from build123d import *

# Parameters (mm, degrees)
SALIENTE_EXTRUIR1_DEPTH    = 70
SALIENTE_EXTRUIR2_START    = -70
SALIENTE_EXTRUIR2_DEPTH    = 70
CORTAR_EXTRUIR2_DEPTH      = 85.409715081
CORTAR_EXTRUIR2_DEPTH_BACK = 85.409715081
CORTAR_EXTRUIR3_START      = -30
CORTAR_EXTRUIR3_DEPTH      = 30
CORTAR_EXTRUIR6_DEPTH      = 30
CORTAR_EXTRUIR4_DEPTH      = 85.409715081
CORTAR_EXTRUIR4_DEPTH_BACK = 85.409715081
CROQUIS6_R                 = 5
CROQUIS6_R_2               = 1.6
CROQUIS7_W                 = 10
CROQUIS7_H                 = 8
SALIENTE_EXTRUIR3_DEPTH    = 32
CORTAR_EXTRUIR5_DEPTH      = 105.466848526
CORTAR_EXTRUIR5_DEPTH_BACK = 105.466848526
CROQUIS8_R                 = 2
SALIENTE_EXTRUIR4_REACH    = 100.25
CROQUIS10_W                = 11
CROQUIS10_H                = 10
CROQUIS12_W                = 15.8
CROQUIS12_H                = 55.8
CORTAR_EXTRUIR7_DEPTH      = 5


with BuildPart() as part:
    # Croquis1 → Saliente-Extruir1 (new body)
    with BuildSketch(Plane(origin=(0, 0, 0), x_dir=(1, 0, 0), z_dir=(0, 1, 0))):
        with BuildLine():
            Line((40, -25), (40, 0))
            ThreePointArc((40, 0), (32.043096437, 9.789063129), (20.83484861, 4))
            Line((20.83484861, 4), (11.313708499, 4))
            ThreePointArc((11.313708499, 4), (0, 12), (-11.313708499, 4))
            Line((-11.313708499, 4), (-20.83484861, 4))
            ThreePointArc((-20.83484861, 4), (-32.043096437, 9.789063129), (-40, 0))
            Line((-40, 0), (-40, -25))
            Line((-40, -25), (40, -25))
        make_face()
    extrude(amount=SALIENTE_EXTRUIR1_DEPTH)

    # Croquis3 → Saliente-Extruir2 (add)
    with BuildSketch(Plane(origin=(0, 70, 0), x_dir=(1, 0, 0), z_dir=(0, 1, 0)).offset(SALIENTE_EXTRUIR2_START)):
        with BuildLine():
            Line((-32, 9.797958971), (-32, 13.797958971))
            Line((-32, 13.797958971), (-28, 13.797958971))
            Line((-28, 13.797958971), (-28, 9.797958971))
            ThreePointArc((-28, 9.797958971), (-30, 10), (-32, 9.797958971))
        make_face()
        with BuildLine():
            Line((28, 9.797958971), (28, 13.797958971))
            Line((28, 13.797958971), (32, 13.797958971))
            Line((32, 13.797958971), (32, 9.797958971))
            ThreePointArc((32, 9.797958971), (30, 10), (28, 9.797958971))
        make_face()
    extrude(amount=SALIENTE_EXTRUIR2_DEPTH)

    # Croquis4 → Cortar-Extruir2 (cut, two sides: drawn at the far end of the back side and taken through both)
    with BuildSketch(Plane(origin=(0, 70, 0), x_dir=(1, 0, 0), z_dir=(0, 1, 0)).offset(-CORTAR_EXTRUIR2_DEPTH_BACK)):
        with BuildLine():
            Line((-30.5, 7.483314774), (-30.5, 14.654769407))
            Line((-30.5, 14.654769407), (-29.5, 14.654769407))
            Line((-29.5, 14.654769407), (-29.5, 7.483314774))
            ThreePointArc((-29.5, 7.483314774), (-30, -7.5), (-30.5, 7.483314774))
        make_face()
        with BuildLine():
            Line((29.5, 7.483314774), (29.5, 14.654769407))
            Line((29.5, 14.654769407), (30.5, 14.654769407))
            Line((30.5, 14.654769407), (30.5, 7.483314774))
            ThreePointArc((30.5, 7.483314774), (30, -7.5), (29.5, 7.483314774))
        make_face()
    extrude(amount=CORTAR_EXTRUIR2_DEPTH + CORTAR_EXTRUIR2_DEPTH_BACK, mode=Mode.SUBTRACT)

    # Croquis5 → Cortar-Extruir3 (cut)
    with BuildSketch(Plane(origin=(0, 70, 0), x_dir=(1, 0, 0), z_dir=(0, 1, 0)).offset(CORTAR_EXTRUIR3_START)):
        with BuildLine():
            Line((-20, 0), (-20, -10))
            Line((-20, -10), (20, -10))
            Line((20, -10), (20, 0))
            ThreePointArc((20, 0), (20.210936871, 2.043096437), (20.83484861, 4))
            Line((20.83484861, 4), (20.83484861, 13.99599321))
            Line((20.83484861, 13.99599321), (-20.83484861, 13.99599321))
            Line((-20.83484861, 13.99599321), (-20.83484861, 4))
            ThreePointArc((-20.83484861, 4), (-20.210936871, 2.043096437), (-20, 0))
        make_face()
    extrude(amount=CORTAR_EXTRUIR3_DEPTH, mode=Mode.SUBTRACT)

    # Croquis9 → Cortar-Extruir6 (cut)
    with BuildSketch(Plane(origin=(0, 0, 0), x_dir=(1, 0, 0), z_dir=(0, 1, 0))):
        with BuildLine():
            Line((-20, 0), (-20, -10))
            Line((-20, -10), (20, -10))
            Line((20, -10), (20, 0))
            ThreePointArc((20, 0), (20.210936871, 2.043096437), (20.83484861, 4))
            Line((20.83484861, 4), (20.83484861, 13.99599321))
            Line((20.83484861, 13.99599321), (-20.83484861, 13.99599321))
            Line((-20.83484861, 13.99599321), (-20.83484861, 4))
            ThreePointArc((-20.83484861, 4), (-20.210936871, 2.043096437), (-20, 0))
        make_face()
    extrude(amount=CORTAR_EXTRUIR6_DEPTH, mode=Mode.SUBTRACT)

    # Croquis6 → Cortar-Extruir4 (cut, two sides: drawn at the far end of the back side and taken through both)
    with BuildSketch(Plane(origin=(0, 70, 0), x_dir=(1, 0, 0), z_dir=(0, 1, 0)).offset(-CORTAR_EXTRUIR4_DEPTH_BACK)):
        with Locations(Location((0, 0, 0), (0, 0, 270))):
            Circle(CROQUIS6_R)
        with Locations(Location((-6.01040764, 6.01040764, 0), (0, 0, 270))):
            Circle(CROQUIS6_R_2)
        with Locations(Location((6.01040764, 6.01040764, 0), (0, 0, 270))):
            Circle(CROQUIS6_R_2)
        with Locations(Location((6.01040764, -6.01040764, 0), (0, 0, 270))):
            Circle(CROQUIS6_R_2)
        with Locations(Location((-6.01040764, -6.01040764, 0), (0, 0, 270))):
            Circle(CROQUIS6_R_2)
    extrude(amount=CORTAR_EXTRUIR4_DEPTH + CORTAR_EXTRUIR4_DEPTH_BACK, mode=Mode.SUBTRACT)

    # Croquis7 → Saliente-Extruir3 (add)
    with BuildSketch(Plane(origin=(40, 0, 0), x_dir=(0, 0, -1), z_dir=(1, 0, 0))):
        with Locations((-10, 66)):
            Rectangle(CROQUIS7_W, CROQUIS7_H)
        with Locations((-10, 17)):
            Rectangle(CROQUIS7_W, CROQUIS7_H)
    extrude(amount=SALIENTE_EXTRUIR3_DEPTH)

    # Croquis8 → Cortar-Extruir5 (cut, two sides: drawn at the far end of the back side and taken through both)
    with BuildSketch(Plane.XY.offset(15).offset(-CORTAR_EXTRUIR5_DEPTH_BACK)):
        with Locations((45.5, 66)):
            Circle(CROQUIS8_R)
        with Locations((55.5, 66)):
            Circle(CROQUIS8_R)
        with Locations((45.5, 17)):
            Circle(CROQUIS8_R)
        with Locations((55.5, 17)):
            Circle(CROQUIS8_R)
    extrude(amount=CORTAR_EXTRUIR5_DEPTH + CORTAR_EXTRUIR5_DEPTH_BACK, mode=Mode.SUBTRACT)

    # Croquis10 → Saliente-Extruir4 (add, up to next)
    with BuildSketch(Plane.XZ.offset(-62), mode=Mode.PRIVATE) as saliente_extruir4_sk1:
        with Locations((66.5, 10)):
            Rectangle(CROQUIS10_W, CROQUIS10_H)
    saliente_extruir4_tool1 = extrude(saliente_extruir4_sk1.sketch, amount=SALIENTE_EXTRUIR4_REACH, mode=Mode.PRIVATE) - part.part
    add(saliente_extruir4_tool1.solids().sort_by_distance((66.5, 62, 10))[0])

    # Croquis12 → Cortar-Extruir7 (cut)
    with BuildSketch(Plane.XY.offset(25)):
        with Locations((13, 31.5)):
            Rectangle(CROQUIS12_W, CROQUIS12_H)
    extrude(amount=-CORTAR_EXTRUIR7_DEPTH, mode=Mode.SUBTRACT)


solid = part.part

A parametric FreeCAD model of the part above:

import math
import FreeCAD as App
import Part
import Sketcher

V = App.Vector


def add_polygon(sketch, points):
    """Adds a closed chain of lines whose ends are joined by coincident constraints."""
    first, n = sketch.GeometryCount, len(points)
    for a, b in zip(points, points[1:] + points[:1]):
        sketch.addGeometry(Part.LineSegment(App.Vector(*a, 0), App.Vector(*b, 0)), False)
    for i in range(n):
        sketch.addConstraint(Sketcher.Constraint("Coincident", first + i, 2, first + (i + 1) % n, 1))

doc = App.newDocument("Part")
body = doc.addObject("PartDesign::Body", "Body")

sketch1 = doc.addObject("Sketcher::SketchObject", "Sketch")
body.addObject(sketch1)
sketch1.AttachmentSupport = (doc.XZ_Plane, [""])
sketch1.MapMode = "FlatFace"
sketch1.addGeometry([
    Part.LineSegment(V(40, 25, 0), V(40, 0, 0)),
    Part.ArcOfCircle(Part.Circle(V(30, 0, 0), V(0, 0, 1), 10), math.radians(-156), math.radians(0)),
    Part.LineSegment(V(21, -4, 0), V(11, -4, 0)),
    Part.ArcOfCircle(Part.Circle(V(0, 0, 0), V(0, 0, 1), 12), math.radians(-161), math.radians(-19)),
    Part.LineSegment(V(-11, -4, 0), V(-21, -4, 0)),
    Part.ArcOfCircle(Part.Circle(V(-30, 0, 0), V(0, 0, 1), 10), math.radians(180), math.radians(336)),
    Part.LineSegment(V(-40, 0, 0), V(-40, 25, 0)),
    Part.LineSegment(V(-40, 25, 0), V(40, 25, 0)),
], False)
sketch1.addConstraint([
    Sketcher.Constraint("Tangent", 0, 2, 1, 2),
    Sketcher.Constraint("Coincident", 1, 1, 2, 1),
    Sketcher.Constraint("Coincident", 2, 2, 3, 2),
    Sketcher.Constraint("Coincident", 3, 1, 4, 1),
    Sketcher.Constraint("Coincident", 4, 2, 5, 2),
    Sketcher.Constraint("Tangent", 5, 1, 6, 1),
    Sketcher.Constraint("Coincident", 6, 2, 7, 1),
    Sketcher.Constraint("Coincident", 7, 2, 0, 1),
    Sketcher.Constraint("Vertical", 0),
    Sketcher.Constraint("Horizontal", 2),
    Sketcher.Constraint("Horizontal", 4),
    Sketcher.Constraint("Vertical", 6),
    Sketcher.Constraint("Horizontal", 7),
    Sketcher.Constraint("Coincident", 3, 3, -1, 1),
    Sketcher.Constraint("Equal", 1, 5),
    Sketcher.Constraint("Symmetric", 1, 3, 5, 3, -1, 1),
    Sketcher.Constraint("Symmetric", 1, 1, 4, 2, -2),
    Sketcher.Constraint("Radius", 1, 10.0),
    Sketcher.Constraint("Radius", 3, 12.0),
    Sketcher.Constraint("DistanceX", 7, 1, 7, 2, 80.0),
    Sketcher.Constraint("DistanceY", 0, 2, 0, 1, 25.0),
    Sketcher.Constraint("DistanceY", 1, 1, -1, 1, 4.0),
])
pad1 = doc.addObject("PartDesign::Pad", "Pad")
body.addObject(pad1)
pad1.Profile = sketch1
pad1.Length = 70
pad1.Reversed = True

sketch2 = doc.addObject("Sketcher::SketchObject", "Sketch001")
body.addObject(sketch2)
sketch2.AttachmentSupport = (doc.XZ_Plane, [""])
sketch2.MapMode = "FlatFace"
sketch2.addGeometry([
    Part.LineSegment(V(-32, -13.8, 0), V(-32, -9.8, 0)),
    Part.ArcOfCircle(Part.Circle(V(-30, 0, 0), V(0, 0, 1), 10), math.radians(-102), math.radians(-78)),
    Part.LineSegment(V(-28, -9.8, 0), V(-28, -13.8, 0)),
    Part.LineSegment(V(-28, -13.8, 0), V(-32, -13.8, 0)),
    Part.LineSegment(V(28, -13.8, 0), V(28, -9.8, 0)),
    Part.ArcOfCircle(Part.Circle(V(30, 0, 0), V(0, 0, 1), 10), math.radians(-102), math.radians(-78)),
    Part.LineSegment(V(32, -9.8, 0), V(32, -13.8, 0)),
    Part.LineSegment(V(32, -13.8, 0), V(28, -13.8, 0)),
], False)
sketch2.addConstraint([
    Sketcher.Constraint("Coincident", 0, 2, 1, 1),
    Sketcher.Constraint("Coincident", 1, 2, 2, 1),
    Sketcher.Constraint("Coincident", 2, 2, 3, 1),
    Sketcher.Constraint("Coincident", 3, 2, 0, 1),
    Sketcher.Constraint("Coincident", 4, 2, 5, 1),
    Sketcher.Constraint("Coincident", 5, 2, 6, 1),
    Sketcher.Constraint("Coincident", 6, 2, 7, 1),
    Sketcher.Constraint("Coincident", 7, 2, 4, 1),
    Sketcher.Constraint("Vertical", 0),
    Sketcher.Constraint("Vertical", 2),
    Sketcher.Constraint("Horizontal", 3),
    Sketcher.Constraint("Vertical", 4),
    Sketcher.Constraint("Vertical", 6),
    Sketcher.Constraint("Horizontal", 7),
    Sketcher.Constraint("Equal", 1, 5),
    Sketcher.Constraint("Symmetric", 1, 3, 5, 3, -1, 1),
    Sketcher.Constraint("Symmetric", 1, 2, 4, 2, -2),
    Sketcher.Constraint("Symmetric", 3, 2, 6, 2, -2),
    Sketcher.Constraint("Horizontal", 0, 2, 1, 2),
    Sketcher.Constraint("Equal", 7, 0),
    Sketcher.Constraint("Radius", 1, 10.0),
    Sketcher.Constraint("DistanceX", 3, 2, 3, 1, 4.0),
    Sketcher.Constraint("DistanceX", 1, 3, -1, 1, 30.0),
])
pad2 = doc.addObject("PartDesign::Pad", "Pad001")
body.addObject(pad2)
pad2.Profile = sketch2
pad2.Length = 70
pad2.Reversed = True

sketch3 = doc.addObject("Sketcher::SketchObject", "Sketch002")
body.addObject(sketch3)
sketch3.AttachmentSupport = (doc.XZ_Plane, [""])
sketch3.MapMode = "FlatFace"
sketch3.AttachmentOffset = App.Placement(V(0, 0, -70), App.Rotation())
sketch3.addGeometry([
    Part.LineSegment(V(-30.5, -14.7, 0), V(-30.5, -7.5, 0)),
    Part.ArcOfCircle(Part.Circle(V(-30, 0, 0), V(0, 0, 1), 7.5), math.radians(-86), math.radians(266)),
    Part.LineSegment(V(-29.5, -7.5, 0), V(-29.5, -14.7, 0)),
    Part.LineSegment(V(-29.5, -14.7, 0), V(-30.5, -14.7, 0)),
    Part.LineSegment(V(29.5, -14.7, 0), V(29.5, -7.5, 0)),
    Part.ArcOfCircle(Part.Circle(V(30, 0, 0), V(0, 0, 1), 7.5), math.radians(-86), math.radians(266)),
    Part.LineSegment(V(30.5, -7.5, 0), V(30.5, -14.7, 0)),
    Part.LineSegment(V(30.5, -14.7, 0), V(29.5, -14.7, 0)),
], False)
sketch3.addConstraint([
    Sketcher.Constraint("Coincident", 0, 2, 1, 2),
    Sketcher.Constraint("Coincident", 1, 1, 2, 1),
    Sketcher.Constraint("Coincident", 2, 2, 3, 1),
    Sketcher.Constraint("Coincident", 3, 2, 0, 1),
    Sketcher.Constraint("Coincident", 4, 2, 5, 2),
    Sketcher.Constraint("Coincident", 5, 1, 6, 1),
    Sketcher.Constraint("Coincident", 6, 2, 7, 1),
    Sketcher.Constraint("Coincident", 7, 2, 4, 1),
    Sketcher.Constraint("Vertical", 0),
    Sketcher.Constraint("Vertical", 2),
    Sketcher.Constraint("Horizontal", 3),
    Sketcher.Constraint("Vertical", 4),
    Sketcher.Constraint("Vertical", 6),
    Sketcher.Constraint("Horizontal", 7),
    Sketcher.Constraint("Equal", 1, 5),
    Sketcher.Constraint("Symmetric", 1, 3, 5, 3, -1, 1),
    Sketcher.Constraint("Symmetric", 1, 1, 4, 2, -2),
    Sketcher.Constraint("Symmetric", 3, 2, 6, 2, -2),
    Sketcher.Constraint("Horizontal", 0, 2, 1, 1),
    Sketcher.Constraint("Radius", 1, 7.5),
    Sketcher.Constraint("DistanceX", 3, 2, 3, 1, 1.0),
    Sketcher.Constraint("DistanceX", 1, 3, -1, 1, 30.0),
    Sketcher.Constraint("DistanceY", 0, 1, 0, 2, 7.171455),
])
pocket1 = doc.addObject("PartDesign::Pocket", "Pocket")
body.addObject(pocket1)
pocket1.Profile = sketch3
pocket1.Type = "ThroughAll"
pocket1.Midplane = True

sketch4 = doc.addObject("Sketcher::SketchObject", "Sketch003")
body.addObject(sketch4)
sketch4.AttachmentSupport = (doc.XZ_Plane, [""])
sketch4.MapMode = "FlatFace"
sketch4.AttachmentOffset = App.Placement(V(0, 0, -40), App.Rotation())
sketch4.addGeometry([
    Part.LineSegment(V(-20, 0, 0), V(-20, 10, 0)),
    Part.LineSegment(V(-20, 10, 0), V(20, 10, 0)),
    Part.LineSegment(V(20, 10, 0), V(20, 0, 0)),
    Part.ArcOfCircle(Part.Circle(V(30, 0, 0), V(0, 0, 1), 10), math.radians(-180), math.radians(-156)),
    Part.LineSegment(V(20.8, -4, 0), V(20.8, -14, 0)),
    Part.LineSegment(V(20.8, -14, 0), V(-20.8, -14, 0)),
    Part.LineSegment(V(-20.8, -14, 0), V(-20.8, -4, 0)),
    Part.ArcOfCircle(Part.Circle(V(-30, 0, 0), V(0, 0, 1), 10), math.radians(-24), math.radians(0)),
], False)
sketch4.addConstraint([
    Sketcher.Constraint("Coincident", 0, 2, 1, 1),
    Sketcher.Constraint("Coincident", 1, 2, 2, 1),
    Sketcher.Constraint("Tangent", 2, 2, 3, 1),
    Sketcher.Constraint("Coincident", 3, 2, 4, 1),
    Sketcher.Constraint("Coincident", 4, 2, 5, 1),
    Sketcher.Constraint("Coincident", 5, 2, 6, 1),
    Sketcher.Constraint("Coincident", 6, 2, 7, 1),
    Sketcher.Constraint("Tangent", 7, 2, 0, 1),
    Sketcher.Constraint("Vertical", 0),
    Sketcher.Constraint("Horizontal", 1),
    Sketcher.Constraint("Vertical", 2),
    Sketcher.Constraint("Vertical", 4),
    Sketcher.Constraint("Horizontal", 5),
    Sketcher.Constraint("Vertical", 6),
    Sketcher.Constraint("Equal", 3, 7),
    Sketcher.Constraint("Symmetric", 3, 3, 7, 3, -1, 1),
    Sketcher.Constraint("Symmetric", 3, 2, 6, 2, -2),
    Sketcher.Constraint("Radius", 3, 10.0),
    Sketcher.Constraint("DistanceX", 1, 1, 1, 2, 40.0),
    Sketcher.Constraint("DistanceY", 0, 1, 0, 2, 10.0),
    Sketcher.Constraint("DistanceY", 3, 2, -1, 1, 4.0),
    Sketcher.Constraint("DistanceY", 4, 2, 4, 1, 9.995993),
])
pocket2 = doc.addObject("PartDesign::Pocket", "Pocket001")
body.addObject(pocket2)
pocket2.Profile = sketch4
pocket2.Length = 30

sketch5 = doc.addObject("Sketcher::SketchObject", "Sketch004")
body.addObject(sketch5)
sketch5.AttachmentSupport = (doc.XZ_Plane, [""])
sketch5.MapMode = "FlatFace"
sketch5.addGeometry([
    Part.LineSegment(V(-20, 0, 0), V(-20, 10, 0)),
    Part.LineSegment(V(-20, 10, 0), V(20, 10, 0)),
    Part.LineSegment(V(20, 10, 0), V(20, 0, 0)),
    Part.ArcOfCircle(Part.Circle(V(30, 0, 0), V(0, 0, 1), 10), math.radians(-180), math.radians(-156)),
    Part.LineSegment(V(20.8, -4, 0), V(20.8, -14, 0)),
    Part.LineSegment(V(20.8, -14, 0), V(-20.8, -14, 0)),
    Part.LineSegment(V(-20.8, -14, 0), V(-20.8, -4, 0)),
    Part.ArcOfCircle(Part.Circle(V(-30, 0, 0), V(0, 0, 1), 10), math.radians(-24), math.radians(0)),
], False)
sketch5.addConstraint([
    Sketcher.Constraint("Coincident", 0, 2, 1, 1),
    Sketcher.Constraint("Coincident", 1, 2, 2, 1),
    Sketcher.Constraint("Tangent", 2, 2, 3, 1),
    Sketcher.Constraint("Coincident", 3, 2, 4, 1),
    Sketcher.Constraint("Coincident", 4, 2, 5, 1),
    Sketcher.Constraint("Coincident", 5, 2, 6, 1),
    Sketcher.Constraint("Coincident", 6, 2, 7, 1),
    Sketcher.Constraint("Tangent", 7, 2, 0, 1),
    Sketcher.Constraint("Vertical", 0),
    Sketcher.Constraint("Horizontal", 1),
    Sketcher.Constraint("Vertical", 2),
    Sketcher.Constraint("Vertical", 4),
    Sketcher.Constraint("Horizontal", 5),
    Sketcher.Constraint("Vertical", 6),
    Sketcher.Constraint("Equal", 3, 7),
    Sketcher.Constraint("Symmetric", 3, 3, 7, 3, -1, 1),
    Sketcher.Constraint("Symmetric", 3, 2, 6, 2, -2),
    Sketcher.Constraint("Radius", 3, 10.0),
    Sketcher.Constraint("DistanceX", 1, 1, 1, 2, 40.0),
    Sketcher.Constraint("DistanceY", 0, 1, 0, 2, 10.0),
    Sketcher.Constraint("DistanceY", 3, 2, -1, 1, 4.0),
    Sketcher.Constraint("DistanceY", 4, 2, 4, 1, 9.995993),
])
pocket3 = doc.addObject("PartDesign::Pocket", "Pocket002")
body.addObject(pocket3)
pocket3.Profile = sketch5
pocket3.Length = 30

sketch6 = doc.addObject("Sketcher::SketchObject", "Sketch005")
body.addObject(sketch6)
sketch6.AttachmentSupport = (doc.XZ_Plane, [""])
sketch6.MapMode = "FlatFace"
sketch6.AttachmentOffset = App.Placement(V(0, 0, -70), App.Rotation())
sketch6.addGeometry([
    Part.Circle(V(0, 0, 0), V(0, 0, 1), 5),
    Part.Circle(V(-6, -6, 0), V(0, 0, 1), 1.6),
    Part.Circle(V(6, -6, 0), V(0, 0, 1), 1.6),
    Part.Circle(V(6, 6, 0), V(0, 0, 1), 1.6),
    Part.Circle(V(-6, 6, 0), V(0, 0, 1), 1.6),
], False)
sketch6.addConstraint([
    Sketcher.Constraint("Coincident", 0, 3, -1, 1),
    Sketcher.Constraint("Equal", 1, 2),
    Sketcher.Constraint("Equal", 2, 3),
    Sketcher.Constraint("Equal", 3, 4),
    Sketcher.Constraint("Symmetric", 1, 3, 3, 3, -1, 1),
    Sketcher.Constraint("Symmetric", 2, 3, 4, 3, -1, 1),
    Sketcher.Constraint("Symmetric", 1, 3, 2, 3, -2),
    Sketcher.Constraint("Diameter", 0, 10.0),
    Sketcher.Constraint("Diameter", 1, 3.2),
    Sketcher.Constraint("DistanceX", 1, 3, -1, 1, 6.010408),
    Sketcher.Constraint("DistanceY", 1, 3, -1, 1, 6.010408),
])
pocket4 = doc.addObject("PartDesign::Pocket", "Pocket003")
body.addObject(pocket4)
pocket4.Profile = sketch6
pocket4.Type = "ThroughAll"
pocket4.Midplane = True

sketch7 = doc.addObject("Sketcher::SketchObject", "Sketch006")
body.addObject(sketch7)
sketch7.AttachmentSupport = (doc.YZ_Plane, [""])
sketch7.MapMode = "FlatFace"
sketch7.AttachmentOffset = App.Placement(V(0, 0, 40), App.Rotation())
add_polygon(sketch7, [(70, 15), (62, 15), (62, 5), (70, 5)])
add_polygon(sketch7, [(21, 15), (13, 15), (13, 5), (21, 5)])
sketch7.addConstraint([
    Sketcher.Constraint("Horizontal", 0),
    Sketcher.Constraint("Vertical", 1),
    Sketcher.Constraint("Horizontal", 2),
    Sketcher.Constraint("Vertical", 3),
    Sketcher.Constraint("Horizontal", 4),
    Sketcher.Constraint("Vertical", 5),
    Sketcher.Constraint("Horizontal", 6),
    Sketcher.Constraint("Vertical", 7),
    Sketcher.Constraint("Horizontal", 3, 2, 4, 2),
    Sketcher.Constraint("Horizontal", 2, 2, 5, 2),
    Sketcher.Constraint("Equal", 2, 4),
    Sketcher.Constraint("DistanceX", 0, 2, 0, 1, 8.0),
    Sketcher.Constraint("DistanceY", 1, 2, 1, 1, 10.0),
    Sketcher.Constraint("DistanceX", -1, 1, 0, 2, 62.0),
    Sketcher.Constraint("DistanceY", -1, 1, 0, 2, 15.0),
    Sketcher.Constraint("DistanceX", -1, 1, 4, 2, 13.0),
])
pad3 = doc.addObject("PartDesign::Pad", "Pad002")
body.addObject(pad3)
pad3.Profile = sketch7
pad3.Length = 32

sketch8 = doc.addObject("Sketcher::SketchObject", "Sketch007")
body.addObject(sketch8)
sketch8.AttachmentSupport = (doc.XY_Plane, [""])
sketch8.MapMode = "FlatFace"
sketch8.AttachmentOffset = App.Placement(V(0, 0, 15), App.Rotation())
sketch8.addGeometry([
    Part.Circle(V(45.5, 66, 0), V(0, 0, 1), 2),
    Part.Circle(V(55.5, 66, 0), V(0, 0, 1), 2),
    Part.Circle(V(45.5, 17, 0), V(0, 0, 1), 2),
    Part.Circle(V(55.5, 17, 0), V(0, 0, 1), 2),
], False)
sketch8.addConstraint([
    Sketcher.Constraint("Equal", 0, 1),
    Sketcher.Constraint("Equal", 1, 2),
    Sketcher.Constraint("Equal", 2, 3),
    Sketcher.Constraint("Horizontal", 0, 3, 1, 3),
    Sketcher.Constraint("Horizontal", 2, 3, 3, 3),
    Sketcher.Constraint("Vertical", 0, 3, 2, 3),
    Sketcher.Constraint("Vertical", 1, 3, 3, 3),
    Sketcher.Constraint("Diameter", 0, 4.0),
    Sketcher.Constraint("DistanceY", -1, 1, 0, 3, 66.0),
    Sketcher.Constraint("DistanceY", -1, 1, 2, 3, 17.0),
    Sketcher.Constraint("DistanceX", 0, 3, 1, 3, 10.0),
    Sketcher.Constraint("DistanceX", -1, 1, 0, 3, 45.5),
])
pocket5 = doc.addObject("PartDesign::Pocket", "Pocket004")
body.addObject(pocket5)
pocket5.Profile = sketch8
pocket5.Type = "ThroughAll"
pocket5.Midplane = True

sketch9 = doc.addObject("Sketcher::SketchObject", "Sketch008")
body.addObject(sketch9)
sketch9.AttachmentSupport = (doc.XZ_Plane, [""])
sketch9.MapMode = "FlatFace"
sketch9.AttachmentOffset = App.Placement(V(0, 0, -62), App.Rotation())
add_polygon(sketch9, [(61, 15), (61, 5), (72, 5), (72, 15)])
sketch9.addConstraint([
    Sketcher.Constraint("Vertical", 0),
    Sketcher.Constraint("Horizontal", 1),
    Sketcher.Constraint("Vertical", 2),
    Sketcher.Constraint("Horizontal", 3),
    Sketcher.Constraint("DistanceX", 1, 1, 1, 2, 11.0),
    Sketcher.Constraint("DistanceY", 0, 2, 0, 1, 10.0),
    Sketcher.Constraint("DistanceX", -1, 1, 0, 2, 61.0),
    Sketcher.Constraint("DistanceY", -1, 1, 0, 2, 5.0),
])
pad4 = doc.addObject("PartDesign::Pad", "Pad003")
body.addObject(pad4)
pad4.Profile = sketch9
pad4.Type = "UpToFirst"

sketch10 = doc.addObject("Sketcher::SketchObject", "Sketch009")
body.addObject(sketch10)
sketch10.AttachmentSupport = (doc.XY_Plane, [""])
sketch10.MapMode = "FlatFace"
sketch10.AttachmentOffset = App.Placement(V(0, 0, 25), App.Rotation())
add_polygon(sketch10, [(5, 59), (5, 4), (21, 4), (21, 59)])
sketch10.addConstraint([
    Sketcher.Constraint("Vertical", 0),
    Sketcher.Constraint("Horizontal", 1),
    Sketcher.Constraint("Vertical", 2),
    Sketcher.Constraint("Horizontal", 3),
    Sketcher.Constraint("DistanceX", 1, 1, 1, 2, 15.8),
    Sketcher.Constraint("DistanceY", 0, 2, 0, 1, 55.8),
    Sketcher.Constraint("DistanceX", -1, 1, 0, 2, 5.1),
    Sketcher.Constraint("DistanceY", -1, 1, 0, 2, 3.6),
])
pocket6 = doc.addObject("PartDesign::Pocket", "Pocket005")
body.addObject(pocket6)
pocket6.Profile = sketch10
pocket6.Length = 5

doc.recompute()
